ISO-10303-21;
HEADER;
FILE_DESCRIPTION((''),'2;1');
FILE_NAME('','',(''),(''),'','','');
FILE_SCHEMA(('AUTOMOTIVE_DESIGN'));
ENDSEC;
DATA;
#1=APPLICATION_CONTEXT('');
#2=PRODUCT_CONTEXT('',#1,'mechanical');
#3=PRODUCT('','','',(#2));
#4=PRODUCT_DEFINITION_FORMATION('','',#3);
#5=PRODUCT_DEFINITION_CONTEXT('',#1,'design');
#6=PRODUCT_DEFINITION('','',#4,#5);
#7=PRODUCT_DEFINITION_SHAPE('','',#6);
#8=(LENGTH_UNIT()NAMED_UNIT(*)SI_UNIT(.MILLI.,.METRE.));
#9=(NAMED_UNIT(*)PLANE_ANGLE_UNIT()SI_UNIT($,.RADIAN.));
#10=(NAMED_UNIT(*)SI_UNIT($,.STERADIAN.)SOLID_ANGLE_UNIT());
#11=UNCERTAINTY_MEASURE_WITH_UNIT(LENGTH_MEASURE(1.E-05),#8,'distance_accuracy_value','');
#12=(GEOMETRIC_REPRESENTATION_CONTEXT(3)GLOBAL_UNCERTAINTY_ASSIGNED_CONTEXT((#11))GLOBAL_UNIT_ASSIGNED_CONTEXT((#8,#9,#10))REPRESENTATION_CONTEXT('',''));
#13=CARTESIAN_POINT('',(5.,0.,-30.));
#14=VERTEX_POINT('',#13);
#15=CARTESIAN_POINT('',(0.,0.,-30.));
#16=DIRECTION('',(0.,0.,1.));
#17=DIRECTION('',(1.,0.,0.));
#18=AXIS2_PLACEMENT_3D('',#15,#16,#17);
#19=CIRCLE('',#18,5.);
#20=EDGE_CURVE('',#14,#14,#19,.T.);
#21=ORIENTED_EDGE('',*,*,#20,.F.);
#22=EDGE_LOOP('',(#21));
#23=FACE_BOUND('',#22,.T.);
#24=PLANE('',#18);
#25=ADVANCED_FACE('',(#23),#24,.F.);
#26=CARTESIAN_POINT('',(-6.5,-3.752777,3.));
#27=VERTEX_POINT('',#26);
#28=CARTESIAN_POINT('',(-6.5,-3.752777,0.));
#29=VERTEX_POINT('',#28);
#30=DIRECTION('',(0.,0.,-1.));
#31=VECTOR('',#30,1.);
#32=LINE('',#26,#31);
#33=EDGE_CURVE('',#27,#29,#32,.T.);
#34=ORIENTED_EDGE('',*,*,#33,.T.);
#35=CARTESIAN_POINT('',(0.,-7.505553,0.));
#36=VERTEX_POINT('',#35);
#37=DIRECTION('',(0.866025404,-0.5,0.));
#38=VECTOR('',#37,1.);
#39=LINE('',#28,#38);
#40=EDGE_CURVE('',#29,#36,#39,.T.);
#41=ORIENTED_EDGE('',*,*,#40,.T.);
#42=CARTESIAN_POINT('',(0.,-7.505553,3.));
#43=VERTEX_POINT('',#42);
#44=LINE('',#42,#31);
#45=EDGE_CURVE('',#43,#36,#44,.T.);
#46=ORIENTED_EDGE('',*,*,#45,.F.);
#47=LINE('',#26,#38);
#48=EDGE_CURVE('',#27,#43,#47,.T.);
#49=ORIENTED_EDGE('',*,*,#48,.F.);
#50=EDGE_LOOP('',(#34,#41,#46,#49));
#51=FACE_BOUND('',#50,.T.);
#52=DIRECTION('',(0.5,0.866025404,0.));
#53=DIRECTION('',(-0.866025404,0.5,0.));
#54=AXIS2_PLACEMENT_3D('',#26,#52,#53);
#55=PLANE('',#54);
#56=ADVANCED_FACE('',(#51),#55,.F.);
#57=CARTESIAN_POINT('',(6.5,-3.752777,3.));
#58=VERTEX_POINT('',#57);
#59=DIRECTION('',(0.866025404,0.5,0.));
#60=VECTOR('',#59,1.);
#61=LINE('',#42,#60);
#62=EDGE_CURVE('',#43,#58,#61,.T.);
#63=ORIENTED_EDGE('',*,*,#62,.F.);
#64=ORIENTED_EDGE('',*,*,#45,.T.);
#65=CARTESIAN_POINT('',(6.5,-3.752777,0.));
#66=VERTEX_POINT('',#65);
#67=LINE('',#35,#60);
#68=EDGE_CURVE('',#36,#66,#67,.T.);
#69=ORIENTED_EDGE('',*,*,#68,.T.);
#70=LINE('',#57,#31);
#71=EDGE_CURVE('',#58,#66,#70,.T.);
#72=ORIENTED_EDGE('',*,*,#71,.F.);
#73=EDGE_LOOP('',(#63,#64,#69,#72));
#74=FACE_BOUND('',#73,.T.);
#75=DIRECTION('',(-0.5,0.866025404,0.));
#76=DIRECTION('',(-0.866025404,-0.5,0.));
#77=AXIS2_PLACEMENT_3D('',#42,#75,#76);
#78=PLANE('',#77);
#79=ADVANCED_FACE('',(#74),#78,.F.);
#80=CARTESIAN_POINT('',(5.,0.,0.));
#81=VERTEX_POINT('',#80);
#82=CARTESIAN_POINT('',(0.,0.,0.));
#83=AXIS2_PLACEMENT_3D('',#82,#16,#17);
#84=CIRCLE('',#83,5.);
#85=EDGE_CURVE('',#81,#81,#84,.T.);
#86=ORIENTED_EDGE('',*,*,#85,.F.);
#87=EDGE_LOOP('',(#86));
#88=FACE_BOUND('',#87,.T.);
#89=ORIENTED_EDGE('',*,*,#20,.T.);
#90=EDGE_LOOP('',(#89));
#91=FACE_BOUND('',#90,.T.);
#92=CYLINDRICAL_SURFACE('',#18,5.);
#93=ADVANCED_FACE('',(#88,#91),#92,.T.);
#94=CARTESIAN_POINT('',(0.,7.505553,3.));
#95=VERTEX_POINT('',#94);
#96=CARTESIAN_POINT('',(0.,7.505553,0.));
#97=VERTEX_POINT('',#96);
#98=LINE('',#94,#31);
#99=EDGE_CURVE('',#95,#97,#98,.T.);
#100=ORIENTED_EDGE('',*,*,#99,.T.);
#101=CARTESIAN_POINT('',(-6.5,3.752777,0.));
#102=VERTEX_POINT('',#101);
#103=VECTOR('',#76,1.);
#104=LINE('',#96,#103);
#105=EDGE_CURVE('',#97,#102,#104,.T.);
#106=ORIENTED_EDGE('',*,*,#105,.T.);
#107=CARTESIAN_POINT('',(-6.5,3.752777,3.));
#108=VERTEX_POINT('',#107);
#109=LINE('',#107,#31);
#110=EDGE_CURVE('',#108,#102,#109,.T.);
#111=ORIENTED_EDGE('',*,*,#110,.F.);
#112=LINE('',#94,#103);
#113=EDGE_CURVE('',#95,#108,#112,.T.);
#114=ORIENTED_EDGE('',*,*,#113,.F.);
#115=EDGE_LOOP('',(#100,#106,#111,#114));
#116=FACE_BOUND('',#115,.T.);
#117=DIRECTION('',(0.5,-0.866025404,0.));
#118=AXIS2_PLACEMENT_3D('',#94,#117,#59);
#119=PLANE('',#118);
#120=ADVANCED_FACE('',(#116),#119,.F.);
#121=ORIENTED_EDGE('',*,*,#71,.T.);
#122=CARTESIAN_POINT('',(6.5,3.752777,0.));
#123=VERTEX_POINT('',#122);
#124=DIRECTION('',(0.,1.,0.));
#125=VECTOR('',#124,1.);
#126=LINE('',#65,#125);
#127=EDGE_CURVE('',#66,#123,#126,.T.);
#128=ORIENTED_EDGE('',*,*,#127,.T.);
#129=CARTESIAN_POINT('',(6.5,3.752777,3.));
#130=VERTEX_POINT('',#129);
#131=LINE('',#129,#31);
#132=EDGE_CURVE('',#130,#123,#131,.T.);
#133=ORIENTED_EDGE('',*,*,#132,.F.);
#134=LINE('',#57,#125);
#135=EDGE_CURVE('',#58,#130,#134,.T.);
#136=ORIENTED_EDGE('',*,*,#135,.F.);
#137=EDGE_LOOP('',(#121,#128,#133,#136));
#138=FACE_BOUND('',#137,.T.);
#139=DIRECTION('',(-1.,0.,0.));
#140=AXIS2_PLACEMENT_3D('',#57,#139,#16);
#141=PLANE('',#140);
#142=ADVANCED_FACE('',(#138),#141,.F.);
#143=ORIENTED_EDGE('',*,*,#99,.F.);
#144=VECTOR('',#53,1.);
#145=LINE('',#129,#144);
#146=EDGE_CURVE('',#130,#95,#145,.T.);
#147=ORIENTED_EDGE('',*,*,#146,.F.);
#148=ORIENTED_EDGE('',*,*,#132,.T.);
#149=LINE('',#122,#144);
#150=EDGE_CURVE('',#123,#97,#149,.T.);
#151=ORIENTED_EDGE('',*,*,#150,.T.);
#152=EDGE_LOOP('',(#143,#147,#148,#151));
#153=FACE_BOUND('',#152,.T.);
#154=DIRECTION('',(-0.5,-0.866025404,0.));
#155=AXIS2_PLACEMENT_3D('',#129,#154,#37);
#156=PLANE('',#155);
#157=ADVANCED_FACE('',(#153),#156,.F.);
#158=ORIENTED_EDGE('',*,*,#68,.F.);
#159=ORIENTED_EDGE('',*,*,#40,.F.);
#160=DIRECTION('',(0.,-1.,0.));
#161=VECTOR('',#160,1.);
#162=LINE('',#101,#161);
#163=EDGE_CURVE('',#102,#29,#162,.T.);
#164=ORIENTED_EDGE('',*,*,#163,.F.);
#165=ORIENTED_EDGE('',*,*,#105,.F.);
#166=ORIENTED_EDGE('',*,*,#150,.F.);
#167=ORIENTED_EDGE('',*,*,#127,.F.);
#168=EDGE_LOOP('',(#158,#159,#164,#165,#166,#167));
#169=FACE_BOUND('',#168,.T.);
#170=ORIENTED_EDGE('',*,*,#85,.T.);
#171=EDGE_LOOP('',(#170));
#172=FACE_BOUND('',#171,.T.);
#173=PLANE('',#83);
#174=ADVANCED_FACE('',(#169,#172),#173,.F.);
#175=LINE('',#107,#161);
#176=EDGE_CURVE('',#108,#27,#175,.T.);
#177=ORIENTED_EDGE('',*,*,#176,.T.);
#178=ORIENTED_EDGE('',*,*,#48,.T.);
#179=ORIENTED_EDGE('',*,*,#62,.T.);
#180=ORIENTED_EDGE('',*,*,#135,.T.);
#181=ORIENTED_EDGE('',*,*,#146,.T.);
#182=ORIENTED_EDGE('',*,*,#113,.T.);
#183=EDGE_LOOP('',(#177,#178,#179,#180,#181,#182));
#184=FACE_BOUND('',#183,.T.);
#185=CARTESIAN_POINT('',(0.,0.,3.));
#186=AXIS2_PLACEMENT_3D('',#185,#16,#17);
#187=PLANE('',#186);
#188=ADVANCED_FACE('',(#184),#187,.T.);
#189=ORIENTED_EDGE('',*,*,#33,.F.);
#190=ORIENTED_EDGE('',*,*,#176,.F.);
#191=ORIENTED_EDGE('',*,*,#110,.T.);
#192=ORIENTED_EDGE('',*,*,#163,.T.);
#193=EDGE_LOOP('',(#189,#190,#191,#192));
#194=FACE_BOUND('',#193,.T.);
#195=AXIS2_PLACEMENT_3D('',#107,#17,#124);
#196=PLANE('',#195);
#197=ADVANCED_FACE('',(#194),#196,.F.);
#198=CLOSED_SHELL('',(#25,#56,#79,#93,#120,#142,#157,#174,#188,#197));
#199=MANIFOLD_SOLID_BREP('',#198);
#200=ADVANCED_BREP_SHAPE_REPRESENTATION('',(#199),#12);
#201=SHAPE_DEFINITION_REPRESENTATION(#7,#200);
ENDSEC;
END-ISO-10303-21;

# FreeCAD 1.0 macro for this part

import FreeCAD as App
import Part
import Sketcher
from FreeCAD import Vector
Q = App.Units.Quantity

doc = App.newDocument("Part")
body = doc.addObject("PartDesign::Body", "Body")

# Sketch on XY plane
sketch1 = body.newObject("Sketcher::SketchObject", "Sketch")
sketch1.AttachmentSupport = (doc.getObject("XY_Plane"), [""])
sketch1.MapMode = "FlatFace"
sketch1.addGeometry(Part.Circle(Vector(0, 0, 0), Vector(0, 0, 1), 5), False)
sketch1.addConstraint([
    Sketcher.Constraint("Coincident", 0, 3, -1, 1),
    Sketcher.Constraint("Diameter", 0, Q("10 mm")),
])
pad1 = body.newObject("PartDesign::Pad", "Pad")
pad1.Profile = sketch1
pad1.Length = 30
pad1.Reversed = True

# Sketch on XY plane
sketch2 = body.newObject("Sketcher::SketchObject", "Sketch001")
sketch2.AttachmentSupport = (doc.getObject("XY_Plane"), [""])
sketch2.MapMode = "FlatFace"
sketch2.addGeometry([
    Part.LineSegment(Vector(-6, -4, 0), Vector(0, -8, 0)),  # 0
    Part.LineSegment(Vector(0, -8, 0), Vector(6, -4, 0)),  # 1
    Part.LineSegment(Vector(6, -4, 0), Vector(6, 4, 0)),  # 2
    Part.LineSegment(Vector(6, 4, 0), Vector(0, 8, 0)),  # 3
    Part.LineSegment(Vector(0, 8, 0), Vector(-6, 4, 0)),  # 4
    Part.LineSegment(Vector(-6, 4, 0), Vector(-6, -4, 0)),  # 5
], False)
sketch2.addConstraint([
    Sketcher.Constraint("Coincident", 0, 2, 1, 1),
    Sketcher.Constraint("Coincident", 1, 2, 2, 1),
    Sketcher.Constraint("Coincident", 2, 2, 3, 1),
    Sketcher.Constraint("Coincident", 3, 2, 4, 1),
    Sketcher.Constraint("Coincident", 4, 2, 5, 1),
    Sketcher.Constraint("Coincident", 5, 2, 0, 1),
    Sketcher.Constraint("Vertical", 2),
    Sketcher.Constraint("Vertical", 5),
    Sketcher.Constraint("Symmetric", 0, 2, 3, 2, -1, 1),
    Sketcher.Constraint("Symmetric", 1, 2, 4, 2, -1, 1),
    Sketcher.Constraint("PointOnObject", 0, 2, -2),
    Sketcher.Constraint("Parallel", 0, 3),
    Sketcher.Constraint("Horizontal", 2, 2, 4, 2),
    Sketcher.Constraint("Angle", 0, Q("-30 deg")),
    Sketcher.Constraint("DistanceX", 4, 2, 2, 2, Q("13 mm")),
    Sketcher.Constraint("DistanceY", 2, 1, 2, 2, Q("7.505554 mm")),
])
pad2 = body.newObject("PartDesign::Pad", "Pad001")
pad2.Profile = sketch2
pad2.Length = 3

doc.recompute()
